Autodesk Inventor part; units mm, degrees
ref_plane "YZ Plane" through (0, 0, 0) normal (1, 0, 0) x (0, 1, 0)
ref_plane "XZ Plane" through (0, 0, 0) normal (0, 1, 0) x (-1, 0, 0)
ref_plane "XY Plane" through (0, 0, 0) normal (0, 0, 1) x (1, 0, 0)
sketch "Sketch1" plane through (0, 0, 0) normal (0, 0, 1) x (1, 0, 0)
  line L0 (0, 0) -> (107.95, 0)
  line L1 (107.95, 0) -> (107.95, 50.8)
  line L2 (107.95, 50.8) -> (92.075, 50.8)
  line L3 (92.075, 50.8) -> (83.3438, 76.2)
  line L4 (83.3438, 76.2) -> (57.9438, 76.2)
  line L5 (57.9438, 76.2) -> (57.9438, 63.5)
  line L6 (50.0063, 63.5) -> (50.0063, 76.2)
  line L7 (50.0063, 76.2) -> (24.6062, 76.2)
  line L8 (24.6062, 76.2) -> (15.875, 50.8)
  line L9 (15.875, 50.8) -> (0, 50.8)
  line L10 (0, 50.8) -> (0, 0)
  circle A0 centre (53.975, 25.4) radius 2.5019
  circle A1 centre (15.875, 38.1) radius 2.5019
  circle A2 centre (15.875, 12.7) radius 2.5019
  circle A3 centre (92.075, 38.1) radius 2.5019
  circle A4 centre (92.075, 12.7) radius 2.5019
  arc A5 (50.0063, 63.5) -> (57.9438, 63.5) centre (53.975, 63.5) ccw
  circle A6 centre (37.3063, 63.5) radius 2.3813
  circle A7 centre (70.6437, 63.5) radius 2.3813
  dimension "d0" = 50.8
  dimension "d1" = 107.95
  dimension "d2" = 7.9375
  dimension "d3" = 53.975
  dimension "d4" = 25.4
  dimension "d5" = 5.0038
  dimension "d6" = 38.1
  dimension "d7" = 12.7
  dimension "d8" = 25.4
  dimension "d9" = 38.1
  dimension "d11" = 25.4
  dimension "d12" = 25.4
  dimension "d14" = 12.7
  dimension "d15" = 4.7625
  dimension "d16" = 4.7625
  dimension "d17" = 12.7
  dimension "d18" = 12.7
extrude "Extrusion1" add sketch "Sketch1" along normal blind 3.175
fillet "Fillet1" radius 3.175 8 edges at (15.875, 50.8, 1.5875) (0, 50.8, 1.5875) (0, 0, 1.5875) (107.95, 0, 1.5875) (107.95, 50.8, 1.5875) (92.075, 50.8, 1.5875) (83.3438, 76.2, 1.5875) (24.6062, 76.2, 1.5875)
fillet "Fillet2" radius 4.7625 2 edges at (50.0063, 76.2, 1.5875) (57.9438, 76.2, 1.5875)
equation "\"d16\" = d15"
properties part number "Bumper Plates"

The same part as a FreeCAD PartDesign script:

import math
import FreeCAD as App
import Part
import Sketcher
from FreeCAD import Vector
Q = App.Units.Quantity


def edges_at(feature, points):
    """Names of the edges that pass closest to the given points."""
    edges = feature.Shape.Edges
    near = lambda p: min(range(len(edges)), key=lambda i: edges[i].distToShape(Part.Vertex(*p))[0])
    return sorted({f"Edge{near(p) + 1}" for p in points})

doc = App.newDocument("Part")
body = doc.addObject("PartDesign::Body", "Body")

sketch1 = doc.addObject("Sketcher::SketchObject", "Sketch")
body.addObject(sketch1)
sketch1.AttachmentSupport = (doc.XY_Plane, [""])
sketch1.MapMode = "FlatFace"
sketch1.addGeometry(Part.LineSegment(Vector(0, 50.8, 0), Vector(0, 0, 0)), False)
sketch1.addGeometry(Part.LineSegment(Vector(0, 0, 0), Vector(107.95, 0, 0)), False)
sketch1.addGeometry(Part.LineSegment(Vector(107.95, 0, 0), Vector(107.95, 50.8, 0)), False)
sketch1.addGeometry(Part.LineSegment(Vector(107.95, 50.8, 0), Vector(92.075, 50.8, 0)), False)
sketch1.addGeometry(Part.LineSegment(Vector(92.075, 50.8, 0), Vector(83.3438, 76.2, 0)), False)
sketch1.addGeometry(Part.LineSegment(Vector(83.3438, 76.2, 0), Vector(57.9438, 76.2, 0)), False)
sketch1.addGeometry(Part.LineSegment(Vector(57.9438, 76.2, 0), Vector(57.9438, 63.5, 0)), False)
sketch1.addGeometry(Part.ArcOfCircle(Part.Circle(Vector(53.975, 63.5, 0), Vector(0, 0, 1), 3.9687), math.radians(180), math.radians(360)), False)
sketch1.addGeometry(Part.LineSegment(Vector(50.0063, 63.5, 0), Vector(50.0063, 76.2, 0)), False)
sketch1.addGeometry(Part.LineSegment(Vector(50.0063, 76.2, 0), Vector(24.6062, 76.2, 0)), False)
sketch1.addGeometry(Part.LineSegment(Vector(24.6062, 76.2, 0), Vector(15.875, 50.8, 0)), False)
sketch1.addGeometry(Part.LineSegment(Vector(15.875, 50.8, 0), Vector(0, 50.8, 0)), False)
sketch1.addGeometry(Part.Circle(Vector(15.875, 12.7, 0), Vector(0, 0, 1), 2.5019), False)
sketch1.addGeometry(Part.Circle(Vector(92.075, 12.7, 0), Vector(0, 0, 1), 2.5019), False)
sketch1.addGeometry(Part.Circle(Vector(53.975, 25.4, 0), Vector(0, 0, 1), 2.5019), False)
sketch1.addGeometry(Part.Circle(Vector(15.875, 38.1, 0), Vector(0, 0, 1), 2.5019), False)
sketch1.addGeometry(Part.Circle(Vector(37.3063, 63.5, 0), Vector(0, 0, 1), 2.3813), False)
sketch1.addGeometry(Part.Circle(Vector(92.075, 38.1, 0), Vector(0, 0, 1), 2.5019), False)
sketch1.addGeometry(Part.Circle(Vector(70.6437, 63.5, 0), Vector(0, 0, 1), 2.3813), False)
sketch1.addConstraint(Sketcher.Constraint("Coincident", 0, 2, 1, 1))
sketch1.addConstraint(Sketcher.Constraint("Coincident", 1, 2, 2, 1))
sketch1.addConstraint(Sketcher.Constraint("Coincident", 2, 2, 3, 1))
sketch1.addConstraint(Sketcher.Constraint("Coincident", 3, 2, 4, 1))
sketch1.addConstraint(Sketcher.Constraint("Coincident", 4, 2, 5, 1))
sketch1.addConstraint(Sketcher.Constraint("Coincident", 5, 2, 6, 1))
sketch1.addConstraint(Sketcher.Constraint("Tangent", 6, 2, 7, 2))
sketch1.addConstraint(Sketcher.Constraint("Tangent", 7, 1, 8, 1))
sketch1.addConstraint(Sketcher.Constraint("Coincident", 8, 2, 9, 1))
sketch1.addConstraint(Sketcher.Constraint("Coincident", 9, 2, 10, 1))
sketch1.addConstraint(Sketcher.Constraint("Coincident", 10, 2, 11, 1))
sketch1.addConstraint(Sketcher.Constraint("Coincident", 11, 2, 0, 1))
sketch1.addConstraint(Sketcher.Constraint("Vertical", 0))
sketch1.addConstraint(Sketcher.Constraint("Horizontal", 1))
sketch1.addConstraint(Sketcher.Constraint("Vertical", 2))
sketch1.addConstraint(Sketcher.Constraint("Horizontal", 3))
sketch1.addConstraint(Sketcher.Constraint("Horizontal", 5))
sketch1.addConstraint(Sketcher.Constraint("Vertical", 6))
sketch1.addConstraint(Sketcher.Constraint("Vertical", 8))
sketch1.addConstraint(Sketcher.Constraint("Horizontal", 9))
sketch1.addConstraint(Sketcher.Constraint("Horizontal", 11))
sketch1.addConstraint(Sketcher.Constraint("Coincident", 0, 2, -1, 1))
sketch1.addConstraint(Sketcher.Constraint("Equal", 12, 13))
sketch1.addConstraint(Sketcher.Constraint("Equal", 13, 14))
sketch1.addConstraint(Sketcher.Constraint("Equal", 14, 15))
sketch1.addConstraint(Sketcher.Constraint("Equal", 15, 17))
sketch1.addConstraint(Sketcher.Constraint("Equal", 16, 18))
sketch1.addConstraint(Sketcher.Constraint("Horizontal", 12, 3, 13, 3))
sketch1.addConstraint(Sketcher.Constraint("Horizontal", 7, 3, 16, 3))
sketch1.addConstraint(Sketcher.Constraint("Horizontal", 15, 3, 17, 3))
sketch1.addConstraint(Sketcher.Constraint("Horizontal", 16, 3, 18, 3))
sketch1.addConstraint(Sketcher.Constraint("Horizontal", 5, 2, 8, 2))
sketch1.addConstraint(Sketcher.Constraint("Horizontal", 3, 2, 10, 2))
sketch1.addConstraint(Sketcher.Constraint("Vertical", 7, 3, 14, 3))
sketch1.addConstraint(Sketcher.Constraint("Vertical", 12, 3, 15, 3))
sketch1.addConstraint(Sketcher.Constraint("Vertical", 13, 3, 17, 3))
sketch1.addConstraint(Sketcher.Constraint("Vertical", 17, 3, 3, 2))
sketch1.addConstraint(Sketcher.Constraint("Vertical", 15, 3, 10, 2))
sketch1.addConstraint(Sketcher.Constraint("Equal", 5, 9))
sketch1.addConstraint(Sketcher.Constraint("Equal", 3, 11))
sketch1.addConstraint(Sketcher.Constraint("Equal", 4, 10))
sketch1.addConstraint(Sketcher.Constraint("DistanceX", 5, 2, 5, 1, Q("1 in")))
sketch1.addConstraint(Sketcher.Constraint("DistanceY", 0, 2, 0, 1, Q("2 in")))
sketch1.addConstraint(Sketcher.Constraint("Diameter", 12, Q("0.197 in")))
sketch1.addConstraint(Sketcher.Constraint("Diameter", 16, Q("0.1875 in")))
sketch1.addConstraint(Sketcher.Constraint("DistanceY", 6, 2, 6, 1, Q("0.5 in")))
sketch1.addConstraint(Sketcher.Constraint("DistanceY", -1, 1, 14, 3, Q("1 in")))
sketch1.addConstraint(Sketcher.Constraint("Radius", 7, Q("0.156248 in")))
sketch1.addConstraint(Sketcher.Constraint("DistanceY", 12, 3, 7, 3, Q("2 in")))
sketch1.addConstraint(Sketcher.Constraint("DistanceY", 12, 3, 15, 3, Q("1 in")))
sketch1.addConstraint(Sketcher.Constraint("DistanceY", 3, 2, 4, 2, Q("1 in")))
sketch1.addConstraint(Sketcher.Constraint("DistanceX", 1, 1, 1, 2, Q("4.25 in")))
sketch1.addConstraint(Sketcher.Constraint("DistanceX", 12, 3, 7, 3, Q("1.5 in")))
sketch1.addConstraint(Sketcher.Constraint("DistanceX", 18, 3, 4, 2, Q("0.5 in")))
sketch1.addConstraint(Sketcher.Constraint("DistanceX", 16, 3, 7, 1, Q("0.5 in")))
pad1 = doc.addObject("PartDesign::Pad", "Pad")
body.addObject(pad1)
pad1.Profile = sketch1
pad1.Length = Q("0.125 in")
doc.recompute()

fillet = doc.addObject("PartDesign::Fillet", "Fillet")
body.addObject(fillet)
fillet.Base = (pad1, edges_at(pad1, [
    (15.875, 50.8, 1.587),
    (0, 50.8, 1.587),
    (0, 0, 1.587),
    (107.95, 0, 1.587),
    (107.95, 50.8, 1.587),
    (92.075, 50.8, 1.587),
    (83.344, 76.2, 1.587),
    (24.606, 76.2, 1.587),
]))
fillet.Radius = Q("0.125 in")
doc.recompute()

fillet2 = doc.addObject("PartDesign::Fillet", "Fillet001")
body.addObject(fillet2)
fillet2.Base = (fillet, edges_at(fillet, [(50.006, 76.2, 1.587), (57.944, 76.2, 1.587)]))
fillet2.Radius = Q("0.1875 in")

doc.recompute()
